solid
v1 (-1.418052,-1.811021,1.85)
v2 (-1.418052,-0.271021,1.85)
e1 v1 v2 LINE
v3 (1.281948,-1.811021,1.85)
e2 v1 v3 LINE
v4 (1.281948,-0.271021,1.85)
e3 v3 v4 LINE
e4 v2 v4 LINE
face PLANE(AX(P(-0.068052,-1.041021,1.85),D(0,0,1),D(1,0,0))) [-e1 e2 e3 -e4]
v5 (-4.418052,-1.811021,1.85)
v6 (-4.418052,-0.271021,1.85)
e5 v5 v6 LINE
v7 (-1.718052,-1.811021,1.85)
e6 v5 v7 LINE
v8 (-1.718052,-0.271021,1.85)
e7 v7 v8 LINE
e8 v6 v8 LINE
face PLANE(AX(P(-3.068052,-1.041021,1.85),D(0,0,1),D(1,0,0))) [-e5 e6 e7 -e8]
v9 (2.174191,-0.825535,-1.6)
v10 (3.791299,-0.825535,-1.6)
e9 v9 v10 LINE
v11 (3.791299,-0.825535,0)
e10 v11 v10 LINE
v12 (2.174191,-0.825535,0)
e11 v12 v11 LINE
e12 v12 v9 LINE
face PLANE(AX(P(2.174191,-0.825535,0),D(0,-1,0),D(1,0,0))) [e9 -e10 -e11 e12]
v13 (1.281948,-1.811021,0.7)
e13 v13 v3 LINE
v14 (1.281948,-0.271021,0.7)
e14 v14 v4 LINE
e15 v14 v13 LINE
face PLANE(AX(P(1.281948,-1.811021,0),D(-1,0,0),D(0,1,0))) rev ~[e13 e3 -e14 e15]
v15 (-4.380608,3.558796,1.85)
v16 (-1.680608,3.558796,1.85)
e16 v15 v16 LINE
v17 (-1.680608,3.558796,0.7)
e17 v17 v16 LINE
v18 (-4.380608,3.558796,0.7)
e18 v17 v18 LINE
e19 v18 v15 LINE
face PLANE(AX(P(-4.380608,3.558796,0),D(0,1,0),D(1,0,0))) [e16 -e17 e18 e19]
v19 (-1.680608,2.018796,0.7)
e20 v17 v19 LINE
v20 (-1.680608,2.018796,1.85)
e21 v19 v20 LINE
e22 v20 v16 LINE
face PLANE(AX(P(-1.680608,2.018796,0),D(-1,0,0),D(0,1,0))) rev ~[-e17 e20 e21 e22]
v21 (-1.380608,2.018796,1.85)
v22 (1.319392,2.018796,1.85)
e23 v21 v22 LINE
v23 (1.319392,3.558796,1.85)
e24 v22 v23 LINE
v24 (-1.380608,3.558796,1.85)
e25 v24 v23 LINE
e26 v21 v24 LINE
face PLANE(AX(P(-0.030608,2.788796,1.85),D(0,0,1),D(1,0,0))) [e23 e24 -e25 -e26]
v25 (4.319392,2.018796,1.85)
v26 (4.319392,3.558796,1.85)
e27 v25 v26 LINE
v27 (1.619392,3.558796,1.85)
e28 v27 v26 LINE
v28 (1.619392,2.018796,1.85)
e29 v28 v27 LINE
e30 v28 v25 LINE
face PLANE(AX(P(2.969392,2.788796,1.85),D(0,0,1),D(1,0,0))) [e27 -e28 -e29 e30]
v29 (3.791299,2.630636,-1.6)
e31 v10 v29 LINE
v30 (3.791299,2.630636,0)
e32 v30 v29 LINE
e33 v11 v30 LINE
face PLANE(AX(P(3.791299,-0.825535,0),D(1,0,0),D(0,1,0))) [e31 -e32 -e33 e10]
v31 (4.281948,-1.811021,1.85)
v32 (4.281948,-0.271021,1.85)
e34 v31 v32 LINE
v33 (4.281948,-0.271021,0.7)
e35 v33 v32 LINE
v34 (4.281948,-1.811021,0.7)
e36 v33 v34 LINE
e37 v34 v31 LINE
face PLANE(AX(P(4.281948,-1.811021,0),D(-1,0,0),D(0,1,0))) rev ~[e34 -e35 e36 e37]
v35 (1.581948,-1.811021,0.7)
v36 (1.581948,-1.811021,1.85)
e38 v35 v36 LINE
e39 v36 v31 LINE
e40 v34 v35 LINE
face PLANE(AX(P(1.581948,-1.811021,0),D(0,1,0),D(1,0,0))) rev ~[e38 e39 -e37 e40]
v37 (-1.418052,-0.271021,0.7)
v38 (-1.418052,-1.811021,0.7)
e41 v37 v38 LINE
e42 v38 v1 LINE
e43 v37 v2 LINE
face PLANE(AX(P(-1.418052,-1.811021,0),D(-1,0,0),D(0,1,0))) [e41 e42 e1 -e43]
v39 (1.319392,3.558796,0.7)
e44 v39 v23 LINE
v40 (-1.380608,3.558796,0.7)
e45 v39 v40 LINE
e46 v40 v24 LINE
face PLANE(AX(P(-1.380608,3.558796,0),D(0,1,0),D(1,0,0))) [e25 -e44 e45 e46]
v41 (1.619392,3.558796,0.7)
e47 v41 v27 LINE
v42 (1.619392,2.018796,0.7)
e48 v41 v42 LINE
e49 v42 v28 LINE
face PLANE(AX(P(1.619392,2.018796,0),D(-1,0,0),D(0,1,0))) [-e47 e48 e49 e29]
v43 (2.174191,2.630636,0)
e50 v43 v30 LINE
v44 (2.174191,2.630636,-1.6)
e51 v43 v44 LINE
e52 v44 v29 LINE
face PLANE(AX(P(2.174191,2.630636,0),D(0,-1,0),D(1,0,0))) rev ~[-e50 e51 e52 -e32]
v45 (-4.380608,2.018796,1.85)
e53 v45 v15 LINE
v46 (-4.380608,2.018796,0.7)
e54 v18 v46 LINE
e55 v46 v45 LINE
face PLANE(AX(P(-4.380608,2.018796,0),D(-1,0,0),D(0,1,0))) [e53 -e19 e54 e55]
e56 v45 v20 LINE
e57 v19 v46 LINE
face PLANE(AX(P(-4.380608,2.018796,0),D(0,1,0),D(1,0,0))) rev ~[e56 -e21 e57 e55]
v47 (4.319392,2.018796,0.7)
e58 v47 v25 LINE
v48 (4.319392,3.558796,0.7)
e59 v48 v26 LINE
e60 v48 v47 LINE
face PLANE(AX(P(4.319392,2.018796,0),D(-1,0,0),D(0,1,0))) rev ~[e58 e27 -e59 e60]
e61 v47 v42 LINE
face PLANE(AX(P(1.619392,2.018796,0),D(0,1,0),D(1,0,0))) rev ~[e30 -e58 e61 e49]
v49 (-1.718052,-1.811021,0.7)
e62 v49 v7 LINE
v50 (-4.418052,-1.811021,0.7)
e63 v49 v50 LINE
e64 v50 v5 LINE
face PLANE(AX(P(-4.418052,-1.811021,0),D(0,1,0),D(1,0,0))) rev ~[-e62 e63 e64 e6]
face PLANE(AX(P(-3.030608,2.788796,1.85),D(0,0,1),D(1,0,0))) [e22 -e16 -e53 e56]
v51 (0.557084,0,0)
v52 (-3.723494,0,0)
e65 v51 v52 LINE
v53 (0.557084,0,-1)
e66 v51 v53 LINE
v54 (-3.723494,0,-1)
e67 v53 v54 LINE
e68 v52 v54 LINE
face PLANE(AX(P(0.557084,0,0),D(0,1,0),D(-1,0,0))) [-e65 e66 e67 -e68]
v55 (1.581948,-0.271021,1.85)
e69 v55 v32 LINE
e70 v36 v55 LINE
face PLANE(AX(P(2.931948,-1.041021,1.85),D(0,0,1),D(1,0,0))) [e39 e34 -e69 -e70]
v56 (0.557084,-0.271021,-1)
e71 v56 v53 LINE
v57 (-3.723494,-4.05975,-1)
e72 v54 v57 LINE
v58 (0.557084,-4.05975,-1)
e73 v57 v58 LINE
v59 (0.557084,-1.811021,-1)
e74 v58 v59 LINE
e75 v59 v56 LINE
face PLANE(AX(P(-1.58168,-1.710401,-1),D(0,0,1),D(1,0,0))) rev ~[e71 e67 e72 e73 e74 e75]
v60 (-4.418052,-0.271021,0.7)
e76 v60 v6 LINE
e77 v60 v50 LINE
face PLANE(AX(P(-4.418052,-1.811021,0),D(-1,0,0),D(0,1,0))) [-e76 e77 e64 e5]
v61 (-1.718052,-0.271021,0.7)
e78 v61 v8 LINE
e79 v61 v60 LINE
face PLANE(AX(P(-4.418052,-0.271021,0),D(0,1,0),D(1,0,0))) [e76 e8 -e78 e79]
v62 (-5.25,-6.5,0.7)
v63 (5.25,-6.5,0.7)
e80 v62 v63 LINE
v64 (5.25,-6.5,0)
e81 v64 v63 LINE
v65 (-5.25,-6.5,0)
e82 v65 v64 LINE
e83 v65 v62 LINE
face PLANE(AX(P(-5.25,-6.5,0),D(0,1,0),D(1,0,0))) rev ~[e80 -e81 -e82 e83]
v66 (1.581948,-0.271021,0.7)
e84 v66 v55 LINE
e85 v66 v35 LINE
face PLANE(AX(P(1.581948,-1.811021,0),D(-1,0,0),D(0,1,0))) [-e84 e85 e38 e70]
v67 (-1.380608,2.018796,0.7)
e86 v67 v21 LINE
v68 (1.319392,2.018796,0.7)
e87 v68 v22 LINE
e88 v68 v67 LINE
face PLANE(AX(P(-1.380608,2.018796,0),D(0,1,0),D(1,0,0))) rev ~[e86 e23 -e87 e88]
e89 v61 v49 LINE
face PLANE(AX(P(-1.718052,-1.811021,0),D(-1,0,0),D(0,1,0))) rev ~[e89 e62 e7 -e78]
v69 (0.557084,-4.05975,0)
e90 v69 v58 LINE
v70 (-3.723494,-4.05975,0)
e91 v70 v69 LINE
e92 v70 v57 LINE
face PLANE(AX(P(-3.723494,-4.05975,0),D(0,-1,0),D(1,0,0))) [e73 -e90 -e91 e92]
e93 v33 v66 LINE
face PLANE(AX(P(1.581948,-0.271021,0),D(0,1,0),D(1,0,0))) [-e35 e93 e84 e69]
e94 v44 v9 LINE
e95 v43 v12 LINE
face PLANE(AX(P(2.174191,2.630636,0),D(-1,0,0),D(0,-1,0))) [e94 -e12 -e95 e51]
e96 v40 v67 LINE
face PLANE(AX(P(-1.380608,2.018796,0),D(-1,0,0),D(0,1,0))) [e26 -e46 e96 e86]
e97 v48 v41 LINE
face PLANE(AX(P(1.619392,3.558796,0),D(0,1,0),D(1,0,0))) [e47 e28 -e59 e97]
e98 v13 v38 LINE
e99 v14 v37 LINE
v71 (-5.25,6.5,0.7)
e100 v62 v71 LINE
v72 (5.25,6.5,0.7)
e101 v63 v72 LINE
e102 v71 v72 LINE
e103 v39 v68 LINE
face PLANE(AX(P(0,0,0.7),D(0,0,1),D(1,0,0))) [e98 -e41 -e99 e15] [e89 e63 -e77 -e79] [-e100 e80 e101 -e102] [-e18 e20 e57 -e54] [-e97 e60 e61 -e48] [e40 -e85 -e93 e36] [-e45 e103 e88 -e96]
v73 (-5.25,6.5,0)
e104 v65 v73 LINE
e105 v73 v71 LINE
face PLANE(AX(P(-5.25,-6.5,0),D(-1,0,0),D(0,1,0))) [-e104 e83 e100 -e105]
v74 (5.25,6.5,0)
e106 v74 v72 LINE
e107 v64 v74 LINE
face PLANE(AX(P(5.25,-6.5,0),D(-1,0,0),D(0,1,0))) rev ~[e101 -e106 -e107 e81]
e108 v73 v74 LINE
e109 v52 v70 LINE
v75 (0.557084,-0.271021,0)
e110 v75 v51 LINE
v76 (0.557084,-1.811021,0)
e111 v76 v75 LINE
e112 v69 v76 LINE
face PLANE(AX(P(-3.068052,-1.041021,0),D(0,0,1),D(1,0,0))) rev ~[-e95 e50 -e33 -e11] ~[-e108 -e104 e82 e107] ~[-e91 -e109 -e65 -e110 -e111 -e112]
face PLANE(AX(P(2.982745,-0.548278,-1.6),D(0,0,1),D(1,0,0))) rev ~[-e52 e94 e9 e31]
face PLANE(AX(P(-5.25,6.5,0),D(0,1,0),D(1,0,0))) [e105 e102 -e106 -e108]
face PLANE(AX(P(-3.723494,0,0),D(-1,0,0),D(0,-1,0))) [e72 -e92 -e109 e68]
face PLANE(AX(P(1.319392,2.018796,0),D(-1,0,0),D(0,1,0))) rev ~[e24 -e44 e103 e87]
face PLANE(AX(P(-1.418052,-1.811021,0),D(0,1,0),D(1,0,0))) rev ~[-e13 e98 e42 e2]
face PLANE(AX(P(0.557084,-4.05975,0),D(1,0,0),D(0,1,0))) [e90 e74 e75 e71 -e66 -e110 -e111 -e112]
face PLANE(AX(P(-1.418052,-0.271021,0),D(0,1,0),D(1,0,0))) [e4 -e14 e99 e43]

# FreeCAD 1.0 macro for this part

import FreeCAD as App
import Part
import Sketcher

V = App.Vector


def add_polygon(sketch, points):
    """Adds a closed chain of lines whose ends are joined by coincident constraints."""
    first, n = sketch.GeometryCount, len(points)
    for a, b in zip(points, points[1:] + points[:1]):
        sketch.addGeometry(Part.LineSegment(App.Vector(*a, 0), App.Vector(*b, 0)), False)
    for i in range(n):
        sketch.addConstraint(Sketcher.Constraint("Coincident", first + i, 2, first + (i + 1) % n, 1))

doc = App.newDocument("Part")
params = doc.addObject("Spreadsheet::Sheet", "Params")
for row, (alias, value) in enumerate([
    ("sketch1_height", "13 mm"),
    ("sketch1_width", "10.5 mm"),
    ("pad1_length", "0.7 mm"),
    ("sketch2_width", "2.7 mm"),
    ("sketch2_height", "1.54 mm"),
    ("pad2_length", "1.85 mm"),
    ("sketch3_height", "1.54 mm"),
    ("pad3_length", "1 mm"),
    ("pad4_length", "1.6 mm"),
], start=1):
    params.set(f"A{row}", alias)
    params.set(f"B{row}", "=" + value)
    params.setAlias(f"B{row}", alias)

body = doc.addObject("PartDesign::Body", "Body")

sketch1 = body.newObject("Sketcher::SketchObject", "Sketch")
sketch1.AttachmentSupport = (doc.getObject("XY_Plane"), [""])
sketch1.MapMode = "FlatFace"
add_polygon(sketch1, [(-5.25, 6.5), (-5.25, -6.5), (5.25, -6.5), (5.25, 6.5)])
sketch1.addConstraint(Sketcher.Constraint("Vertical", 0))
sketch1.addConstraint(Sketcher.Constraint("Horizontal", 1))
sketch1.addConstraint(Sketcher.Constraint("Vertical", 2))
sketch1.addConstraint(Sketcher.Constraint("Horizontal", 3))
sketch1.addConstraint(Sketcher.Constraint("Symmetric", 0, 2, 2, 2, -1, 1))
sketch1.addConstraint(Sketcher.Constraint("DistanceY", 0, 2, 0, 1, 13.0))
sketch1.addConstraint(Sketcher.Constraint("DistanceX", 1, 1, 1, 2, 10.5))
sketch1.setExpression("Constraints[9]", "Params.sketch1_height")
sketch1.setExpression("Constraints[10]", "Params.sketch1_width")
pad1 = body.newObject("PartDesign::Pad", "Pad")
pad1.Profile = sketch1
pad1.setExpression("Length", "Params.pad1_length")

sketch2 = body.newObject("Sketcher::SketchObject", "Sketch001")
sketch2.AttachmentSupport = (doc.getObject("XY_Plane"), [""])
sketch2.MapMode = "FlatFace"
add_polygon(sketch2, [(-4.418052, -0.271021), (-4.418052, -1.811021), (-1.718052, -1.811021), (-1.718052, -0.271021)])
add_polygon(sketch2, [(-1.418052, -0.271021), (-1.418052, -1.811021), (1.281948, -1.811021), (1.281948, -0.271021)])
add_polygon(sketch2, [(1.581948, -0.271021), (1.581948, -1.811021), (4.281948, -1.811021), (4.281948, -0.271021)])
add_polygon(sketch2, [(1.619392, 3.558796), (1.619392, 2.018796), (4.319392, 2.018796), (4.319392, 3.558796)])
add_polygon(sketch2, [(-1.380608, 3.558796), (-1.380608, 2.018796), (1.319392, 2.018796), (1.319392, 3.558796)])
add_polygon(sketch2, [(-4.380608, 3.558796), (-4.380608, 2.018796), (-1.680608, 2.018796), (-1.680608, 3.558796)])
sketch2.addConstraint(Sketcher.Constraint("Vertical", 0))
sketch2.addConstraint(Sketcher.Constraint("Horizontal", 1))
sketch2.addConstraint(Sketcher.Constraint("Vertical", 2))
sketch2.addConstraint(Sketcher.Constraint("Horizontal", 3))
sketch2.addConstraint(Sketcher.Constraint("Vertical", 4))
sketch2.addConstraint(Sketcher.Constraint("Horizontal", 5))
sketch2.addConstraint(Sketcher.Constraint("Vertical", 6))
sketch2.addConstraint(Sketcher.Constraint("Horizontal", 7))
sketch2.addConstraint(Sketcher.Constraint("Vertical", 8))
sketch2.addConstraint(Sketcher.Constraint("Horizontal", 9))
sketch2.addConstraint(Sketcher.Constraint("Vertical", 10))
sketch2.addConstraint(Sketcher.Constraint("Horizontal", 11))
sketch2.addConstraint(Sketcher.Constraint("Vertical", 12))
sketch2.addConstraint(Sketcher.Constraint("Horizontal", 13))
sketch2.addConstraint(Sketcher.Constraint("Vertical", 14))
sketch2.addConstraint(Sketcher.Constraint("Horizontal", 15))
sketch2.addConstraint(Sketcher.Constraint("Vertical", 16))
sketch2.addConstraint(Sketcher.Constraint("Horizontal", 17))
sketch2.addConstraint(Sketcher.Constraint("Vertical", 18))
sketch2.addConstraint(Sketcher.Constraint("Horizontal", 19))
sketch2.addConstraint(Sketcher.Constraint("Vertical", 20))
sketch2.addConstraint(Sketcher.Constraint("Horizontal", 21))
sketch2.addConstraint(Sketcher.Constraint("Vertical", 22))
sketch2.addConstraint(Sketcher.Constraint("Horizontal", 23))
sketch2.addConstraint(Sketcher.Constraint("Horizontal", 1, 2, 4, 2))
sketch2.addConstraint(Sketcher.Constraint("Horizontal", 3, 2, 6, 2))
sketch2.addConstraint(Sketcher.Constraint("Horizontal", 5, 2, 8, 2))
sketch2.addConstraint(Sketcher.Constraint("Horizontal", 7, 2, 10, 2))
sketch2.addConstraint(Sketcher.Constraint("Horizontal", 13, 2, 16, 2))
sketch2.addConstraint(Sketcher.Constraint("Horizontal", 15, 2, 18, 2))
sketch2.addConstraint(Sketcher.Constraint("Horizontal", 17, 2, 20, 2))
sketch2.addConstraint(Sketcher.Constraint("Horizontal", 19, 2, 22, 2))
sketch2.addConstraint(Sketcher.Constraint("Equal", 3, 5))
sketch2.addConstraint(Sketcher.Constraint("Equal", 7, 9))
sketch2.addConstraint(Sketcher.Constraint("Equal", 11, 13))
sketch2.addConstraint(Sketcher.Constraint("Equal", 15, 17))
sketch2.addConstraint(Sketcher.Constraint("Equal", 19, 21))
sketch2.addConstraint(Sketcher.Constraint("Equal", 10, 12))
sketch2.addConstraint(Sketcher.Constraint("DistanceX", 1, 1, 1, 2, 2.7))
sketch2.addConstraint(Sketcher.Constraint("DistanceX", 0, 2, 4, 2, 3.0))
sketch2.addConstraint(Sketcher.Constraint("DistanceX", 4, 2, 8, 2, 3.0))
sketch2.addConstraint(Sketcher.Constraint("DistanceX", 16, 2, 12, 2, 3.0))
sketch2.addConstraint(Sketcher.Constraint("DistanceX", 20, 2, 16, 2, 3.0))
sketch2.addConstraint(Sketcher.Constraint("DistanceY", 0, 2, 0, 1, 1.54))
sketch2.addConstraint(Sketcher.Constraint("DistanceX", 0, 2, -1, 1, 4.418052))
sketch2.addConstraint(Sketcher.Constraint("DistanceY", 0, 2, -1, 1, 1.811021))
sketch2.addConstraint(Sketcher.Constraint("DistanceX", -1, 1, 12, 2, 1.619392))
sketch2.addConstraint(Sketcher.Constraint("DistanceY", -1, 1, 12, 2, 2.018796))
sketch2.setExpression("Constraints[62]", "Params.sketch2_width")
sketch2.setExpression("Constraints[67]", "Params.sketch2_height")
pad2 = body.newObject("PartDesign::Pad", "Pad001")
pad2.Profile = sketch2
pad2.setExpression("Length", "Params.pad2_length")

sketch3 = body.newObject("Sketcher::SketchObject", "Sketch002")
sketch3.AttachmentSupport = (doc.getObject("XY_Plane"), [""])
sketch3.MapMode = "FlatFace"
add_polygon(sketch3, [(-3.723494, -4.05975), (0.557084, -4.05975), (0.557084, -1.811021), (0.557084, -0.271021), (0.557084, 0), (-3.723494, 0)])
sketch3.addConstraint(Sketcher.Constraint("Horizontal", 0))
sketch3.addConstraint(Sketcher.Constraint("Vertical", 1))
sketch3.addConstraint(Sketcher.Constraint("Vertical", 2))
sketch3.addConstraint(Sketcher.Constraint("Vertical", 3))
sketch3.addConstraint(Sketcher.Constraint("Horizontal", 4))
sketch3.addConstraint(Sketcher.Constraint("Vertical", 5))
sketch3.addConstraint(Sketcher.Constraint("PointOnObject", 3, 2, -1))
sketch3.addConstraint(Sketcher.Constraint("DistanceY", 2, 1, 2, 2, 1.54))
sketch3.addConstraint(Sketcher.Constraint("DistanceX", 0, 1, 0, 2, 4.280578))
sketch3.addConstraint(Sketcher.Constraint("DistanceY", 1, 1, 1, 2, 2.248729))
sketch3.addConstraint(Sketcher.Constraint("DistanceY", 3, 1, 3, 2, 0.271021))
sketch3.addConstraint(Sketcher.Constraint("DistanceX", -1, 1, 0, 2, 0.557084))
sketch3.setExpression("Constraints[13]", "Params.sketch3_height")
pad3 = body.newObject("PartDesign::Pad", "Pad002")
pad3.Profile = sketch3
pad3.setExpression("Length", "Params.pad3_length")
pad3.Reversed = True

sketch4 = body.newObject("Sketcher::SketchObject", "Sketch003")
sketch4.AttachmentSupport = (doc.getObject("XY_Plane"), [""])
sketch4.MapMode = "FlatFace"
add_polygon(sketch4, [(2.174191, -0.825535), (3.791299, -0.825535), (3.791299, 2.630636), (2.174191, 2.630636)])
sketch4.addConstraint(Sketcher.Constraint("Horizontal", 0))
sketch4.addConstraint(Sketcher.Constraint("Vertical", 1))
sketch4.addConstraint(Sketcher.Constraint("Horizontal", 2))
sketch4.addConstraint(Sketcher.Constraint("Vertical", 3))
sketch4.addConstraint(Sketcher.Constraint("DistanceY", 1, 1, 1, 2, 3.456171))
sketch4.addConstraint(Sketcher.Constraint("DistanceX", -1, 1, 0, 2, 3.791299))
sketch4.addConstraint(Sketcher.Constraint("DistanceX", 0, 1, 0, 2, 1.617107))
sketch4.addConstraint(Sketcher.Constraint("DistanceY", 0, 2, -1, 1, 0.825535))
pad4 = body.newObject("PartDesign::Pad", "Pad003")
pad4.Profile = sketch4
pad4.setExpression("Length", "Params.pad4_length")
pad4.Reversed = True

doc.recompute()
